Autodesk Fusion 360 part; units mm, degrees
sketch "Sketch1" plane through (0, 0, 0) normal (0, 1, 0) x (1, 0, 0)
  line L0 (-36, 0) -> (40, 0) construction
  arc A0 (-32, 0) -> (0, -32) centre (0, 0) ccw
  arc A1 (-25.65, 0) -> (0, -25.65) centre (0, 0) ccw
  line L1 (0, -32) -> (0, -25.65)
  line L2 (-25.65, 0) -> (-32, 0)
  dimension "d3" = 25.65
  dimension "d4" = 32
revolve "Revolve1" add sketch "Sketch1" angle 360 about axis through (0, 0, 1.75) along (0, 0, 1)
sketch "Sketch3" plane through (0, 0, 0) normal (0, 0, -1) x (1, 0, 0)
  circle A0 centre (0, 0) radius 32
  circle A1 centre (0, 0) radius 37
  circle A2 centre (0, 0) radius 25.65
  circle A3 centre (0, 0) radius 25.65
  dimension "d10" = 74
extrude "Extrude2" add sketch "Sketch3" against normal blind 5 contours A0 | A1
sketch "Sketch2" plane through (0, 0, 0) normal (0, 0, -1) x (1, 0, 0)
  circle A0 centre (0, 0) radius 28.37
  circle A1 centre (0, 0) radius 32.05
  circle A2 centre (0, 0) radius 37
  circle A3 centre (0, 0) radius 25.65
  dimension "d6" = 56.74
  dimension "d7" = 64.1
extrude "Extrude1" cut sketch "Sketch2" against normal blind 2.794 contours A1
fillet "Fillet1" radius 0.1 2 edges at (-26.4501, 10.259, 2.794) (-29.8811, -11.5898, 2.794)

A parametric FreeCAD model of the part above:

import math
import FreeCAD as App
import Part
import Sketcher
from FreeCAD import Vector


def edges_at(feature, points):
    """Names of the edges that pass closest to the given points."""
    edges = feature.Shape.Edges
    near = lambda p: min(range(len(edges)), key=lambda i: edges[i].distToShape(Part.Vertex(*p))[0])
    return sorted({f"Edge{near(p) + 1}" for p in points})

doc = App.newDocument("Part")
body = doc.addObject("PartDesign::Body", "Body")

# Sketch on XZ plane
sketch1 = body.newObject("Sketcher::SketchObject", "Sketch")
sketch1.AttachmentSupport = (doc.getObject("XZ_Plane"), [""])
sketch1.MapMode = "FlatFace"
sketch1.addGeometry([
    Part.LineSegment(Vector(-26, 0, 0), Vector(-32, 0, 0)),
    Part.ArcOfCircle(Part.Circle(Vector(0, 0, 0), Vector(0, 0, 1), 32), math.radians(90), math.radians(180)),
    Part.LineSegment(Vector(0, 32, 0), Vector(0, 26, 0)),
    Part.ArcOfCircle(Part.Circle(Vector(0, 0, 0), Vector(0, 0, 1), 26), math.radians(90), math.radians(180)),
], False)
sketch1.addConstraint([
    Sketcher.Constraint("Coincident", 0, 2, 1, 2),
    Sketcher.Constraint("Coincident", 1, 1, 2, 1),
    Sketcher.Constraint("Coincident", 2, 2, 3, 1),
    Sketcher.Constraint("Coincident", 3, 2, 0, 1),
    Sketcher.Constraint("Horizontal", 0),
    Sketcher.Constraint("Vertical", 2),
    Sketcher.Constraint("Coincident", 1, 3, -1, 1),
    Sketcher.Constraint("Coincident", 3, 3, -1, 1),
    Sketcher.Constraint("PointOnObject", 0, 2, -1),
    Sketcher.Constraint("PointOnObject", 1, 1, -2),
    Sketcher.Constraint("Radius", 1, 32.0),
    Sketcher.Constraint("Radius", 3, 25.65),
])
revolution = body.newObject("PartDesign::Revolution", "Revolution")
revolution.Profile = sketch1
revolution.ReferenceAxis = (sketch1, ["V_Axis"])
revolution.Angle = 360

# Sketch on XY plane
sketch2 = body.newObject("Sketcher::SketchObject", "Sketch001")
sketch2.AttachmentSupport = (doc.getObject("XY_Plane"), [""])
sketch2.MapMode = "FlatFace"
sketch2.addGeometry([
    Part.Circle(Vector(0, 0, 0), Vector(0, 0, 1), 37),
    Part.Circle(Vector(0, 0, 0), Vector(0, 0, 1), 26),
], False)
sketch2.addConstraint([
    Sketcher.Constraint("Coincident", 0, 3, -1, 1),
    Sketcher.Constraint("Coincident", 1, 3, -1, 1),
    Sketcher.Constraint("Diameter", 0, 74.0),
    Sketcher.Constraint("Diameter", 1, 51.3),
])
pad1 = body.newObject("PartDesign::Pad", "Pad")
pad1.Profile = sketch2
pad1.Length = 5

# Sketch on XY plane
sketch3 = body.newObject("Sketcher::SketchObject", "Sketch002")
sketch3.AttachmentSupport = (doc.getObject("XY_Plane"), [""])
sketch3.MapMode = "FlatFace"
sketch3.addGeometry([
    Part.Circle(Vector(0, 0, 0), Vector(0, 0, 1), 32),
    Part.Circle(Vector(0, 0, 0), Vector(0, 0, 1), 28),
], False)
sketch3.addConstraint([
    Sketcher.Constraint("Coincident", 0, 3, -1, 1),
    Sketcher.Constraint("Coincident", 1, 3, -1, 1),
    Sketcher.Constraint("Diameter", 0, 64.1),
    Sketcher.Constraint("Diameter", 1, 56.74),
])
pocket1 = body.newObject("PartDesign::Pocket", "Pocket")
pocket1.Profile = sketch3
pocket1.Length = 2.794
pocket1.Reversed = True
doc.recompute()

fillet = body.newObject("PartDesign::Fillet", "Fillet")
fillet.Base = (pocket1, edges_at(pocket1, [(-26.45, 10.259, 2.794), (-29.881, -11.59, 2.794)]))
fillet.Radius = 0.1

doc.recompute()
